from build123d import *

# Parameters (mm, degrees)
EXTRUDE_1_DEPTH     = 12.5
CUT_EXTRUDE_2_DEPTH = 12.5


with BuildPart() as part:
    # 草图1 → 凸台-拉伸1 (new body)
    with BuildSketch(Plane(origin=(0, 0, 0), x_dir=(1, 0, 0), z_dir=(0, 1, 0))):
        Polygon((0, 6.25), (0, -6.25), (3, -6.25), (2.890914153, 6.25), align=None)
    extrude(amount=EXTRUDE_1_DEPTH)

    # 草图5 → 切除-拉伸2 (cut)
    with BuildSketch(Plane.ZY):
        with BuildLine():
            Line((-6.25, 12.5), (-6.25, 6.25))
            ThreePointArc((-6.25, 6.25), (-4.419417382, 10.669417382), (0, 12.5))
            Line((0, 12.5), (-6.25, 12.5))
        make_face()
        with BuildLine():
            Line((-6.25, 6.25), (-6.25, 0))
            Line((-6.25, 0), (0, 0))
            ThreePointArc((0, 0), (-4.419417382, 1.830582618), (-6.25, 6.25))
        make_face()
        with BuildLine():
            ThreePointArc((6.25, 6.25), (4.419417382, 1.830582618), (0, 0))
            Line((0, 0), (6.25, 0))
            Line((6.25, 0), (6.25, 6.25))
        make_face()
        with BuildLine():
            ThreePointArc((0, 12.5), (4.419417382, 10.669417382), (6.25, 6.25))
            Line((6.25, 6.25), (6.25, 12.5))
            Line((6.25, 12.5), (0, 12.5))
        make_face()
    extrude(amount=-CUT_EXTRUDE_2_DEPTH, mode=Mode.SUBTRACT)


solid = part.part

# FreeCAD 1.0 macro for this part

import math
import FreeCAD as App
import Part
import Sketcher

V = App.Vector
Q = App.Units.Quantity


def add_polygon(sketch, points):
    """Adds a closed chain of lines whose ends are joined by coincident constraints."""
    first, n = sketch.GeometryCount, len(points)
    for a, b in zip(points, points[1:] + points[:1]):
        sketch.addGeometry(Part.LineSegment(App.Vector(*a, 0), App.Vector(*b, 0)), False)
    for i in range(n):
        sketch.addConstraint(Sketcher.Constraint("Coincident", first + i, 2, first + (i + 1) % n, 1))

doc = App.newDocument("Part")
body = doc.addObject("PartDesign::Body", "Body")

sketch1 = body.newObject("Sketcher::SketchObject", "Sketch")
sketch1.AttachmentSupport = (doc.getObject("XZ_Plane"), [""])
sketch1.MapMode = "FlatFace"
add_polygon(sketch1, [(0, -6.25), (0, 6.25), (3, 6.25), (2.890914, -6.25)])
sketch1.addConstraint([
    Sketcher.Constraint("Vertical", 0),
    Sketcher.Constraint("Horizontal", 1),
    Sketcher.Constraint("Horizontal", 3),
    Sketcher.Constraint("Symmetric", 0, 2, 3, 2, -1, 1),
    Sketcher.Constraint("DistanceX", 1, 1, 1, 2, Q("3 mm")),
    Sketcher.Constraint("DistanceY", 0, 1, 0, 2, Q("12.5 mm")),
    Sketcher.Constraint("Angle", 2, Q("-90.5 deg")),
])
pad1 = body.newObject("PartDesign::Pad", "Pad")
pad1.Profile = sketch1
pad1.Length = 12.5
pad1.Reversed = True

sketch2 = body.newObject("Sketcher::SketchObject", "Sketch001")
sketch2.AttachmentSupport = (doc.getObject("YZ_Plane"), [""])
sketch2.MapMode = "FlatFace"
sketch2.addGeometry([
    Part.LineSegment(V(12.5, -6.25, 0), V(6.25, -6.25, 0)),
    Part.ArcOfCircle(Part.Circle(V(6.25, 0, 0), V(0, 0, 1), 6.25), math.radians(-90), math.radians(0)),
    Part.LineSegment(V(12.5, 0, 0), V(12.5, -6.25, 0)),
    Part.LineSegment(V(6.25, -6.25, 0), V(0, -6.25, 0)),
    Part.LineSegment(V(0, -6.25, 0), V(0, 0, 0)),
    Part.ArcOfCircle(Part.Circle(V(6.25, 0, 0), V(0, 0, 1), 6.25), math.radians(-180), math.radians(-90)),
    Part.ArcOfCircle(Part.Circle(V(6.25, 0, 0), V(0, 0, 1), 6.25), math.radians(90), math.radians(180)),
    Part.LineSegment(V(0, 0, 0), V(0, 6.25, 0)),
    Part.LineSegment(V(0, 6.25, 0), V(6.25, 6.25, 0)),
    Part.ArcOfCircle(Part.Circle(V(6.25, 0, 0), V(0, 0, 1), 6.25), math.radians(0), math.radians(90)),
    Part.LineSegment(V(6.25, 6.25, 0), V(12.5, 6.25, 0)),
    Part.LineSegment(V(12.5, 6.25, 0), V(12.5, 0, 0)),
], False)
sketch2.addConstraint([
    Sketcher.Constraint("Tangent", 0, 2, 1, 1),
    Sketcher.Constraint("Tangent", 1, 2, 2, 1),
    Sketcher.Constraint("Coincident", 2, 2, 0, 1),
    Sketcher.Constraint("Coincident", 3, 2, 4, 1),
    Sketcher.Constraint("Tangent", 4, 2, 5, 1),
    Sketcher.Constraint("Tangent", 5, 2, 3, 1),
    Sketcher.Constraint("Tangent", 6, 2, 7, 1),
    Sketcher.Constraint("Coincident", 7, 2, 8, 1),
    Sketcher.Constraint("Tangent", 8, 2, 6, 1),
    Sketcher.Constraint("Tangent", 9, 2, 10, 1),
    Sketcher.Constraint("Coincident", 10, 2, 11, 1),
    Sketcher.Constraint("Tangent", 11, 2, 9, 1),
    Sketcher.Constraint("Horizontal", 0),
    Sketcher.Constraint("Vertical", 2),
    Sketcher.Constraint("Horizontal", 3),
    Sketcher.Constraint("Vertical", 4),
    Sketcher.Constraint("Vertical", 7),
    Sketcher.Constraint("Horizontal", 8),
    Sketcher.Constraint("Horizontal", 10),
    Sketcher.Constraint("Vertical", 11),
    Sketcher.Constraint("Coincident", 4, 2, -1, 1),
    Sketcher.Constraint("Coincident", 6, 2, -1, 1),
    Sketcher.Constraint("Coincident", 5, 3, 1, 3),
    Sketcher.Constraint("Coincident", 9, 3, 1, 3),
    Sketcher.Constraint("Coincident", 9, 2, 8, 2),
    Sketcher.Constraint("Equal", 1, 5),
    Sketcher.Constraint("Radius", 1, Q("6.25 mm")),
])
pocket1 = body.newObject("PartDesign::Pocket", "Pocket")
pocket1.Profile = sketch2
pocket1.Length = 12.5
pocket1.Reversed = True

doc.recompute()
